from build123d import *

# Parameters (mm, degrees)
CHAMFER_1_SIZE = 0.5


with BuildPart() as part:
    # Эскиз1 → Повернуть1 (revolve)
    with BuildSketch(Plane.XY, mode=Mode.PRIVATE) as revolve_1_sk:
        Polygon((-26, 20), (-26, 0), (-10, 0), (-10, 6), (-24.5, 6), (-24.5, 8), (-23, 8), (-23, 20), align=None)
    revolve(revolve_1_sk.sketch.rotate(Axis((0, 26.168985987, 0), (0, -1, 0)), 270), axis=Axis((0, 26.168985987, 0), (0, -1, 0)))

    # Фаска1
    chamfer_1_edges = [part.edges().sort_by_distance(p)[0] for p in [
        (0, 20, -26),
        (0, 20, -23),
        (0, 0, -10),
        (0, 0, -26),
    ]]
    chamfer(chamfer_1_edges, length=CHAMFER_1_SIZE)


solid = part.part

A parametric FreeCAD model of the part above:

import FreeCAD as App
import Part
import Sketcher
from FreeCAD import Vector
Q = App.Units.Quantity


def edges_at(feature, points):
    """Names of the edges that pass closest to the given points."""
    edges = feature.Shape.Edges
    near = lambda p: min(range(len(edges)), key=lambda i: edges[i].distToShape(Part.Vertex(*p))[0])
    return sorted({f"Edge{near(p) + 1}" for p in points})


def add_polygon(sketch, points):
    """Adds a closed chain of lines whose ends are joined by coincident constraints."""
    first, n = sketch.GeometryCount, len(points)
    for a, b in zip(points, points[1:] + points[:1]):
        sketch.addGeometry(Part.LineSegment(App.Vector(*a, 0), App.Vector(*b, 0)), False)
    for i in range(n):
        sketch.addConstraint(Sketcher.Constraint("Coincident", first + i, 2, first + (i + 1) % n, 1))

doc = App.newDocument("Part")
params = doc.addObject("Spreadsheet::Sheet", "Params")
for row, (alias, value) in enumerate([
    ("sketch1_width", "16 mm"),
    ("sketch1_width2", "3 mm"),
    ("sketch1_height", "20 mm"),
    ("sketch1_height2", "6 mm"),
    ("sketch1_height3", "2 mm"),
    ("revolution_angle", "360 deg"),
    ("chamfer_size", "0.5 mm"),
], start=1):
    params.set(f"A{row}", alias)
    params.set(f"B{row}", "=" + value)
    params.setAlias(f"B{row}", alias)

body = doc.addObject("PartDesign::Body", "Body")

# Sketch on XY plane
sketch1 = doc.addObject("Sketcher::SketchObject", "Sketch")
body.addObject(sketch1)
sketch1.AttachmentSupport = (doc.XY_Plane, [""])
sketch1.MapMode = "FlatFace"
add_polygon(sketch1, [(-26, 20), (-26, 0), (-10, 0), (-10, 6), (-24.5, 6), (-24.5, 8), (-23, 8), (-23, 20)])  # lines 0-7
sketch1.addConstraint([
    Sketcher.Constraint("Vertical", 0),
    Sketcher.Constraint("Horizontal", 1),
    Sketcher.Constraint("Vertical", 2),
    Sketcher.Constraint("Horizontal", 3),
    Sketcher.Constraint("Vertical", 4),
    Sketcher.Constraint("Horizontal", 5),
    Sketcher.Constraint("Vertical", 6),
    Sketcher.Constraint("Horizontal", 7),
    Sketcher.Constraint("PointOnObject", 0, 2, -1),
    Sketcher.Constraint("DistanceX", 1, 1, 1, 2, Q("16 mm")),
    Sketcher.Constraint("DistanceX", 7, 2, 7, 1, Q("3 mm")),
    Sketcher.Constraint("DistanceY", 0, 2, 0, 1, Q("20 mm")),
    Sketcher.Constraint("DistanceY", 2, 1, 2, 2, Q("6 mm")),
    Sketcher.Constraint("DistanceY", 4, 1, 4, 2, Q("2 mm")),
    Sketcher.Constraint("DistanceX", 3, 2, 3, 1, Q("14.5 mm")),
    Sketcher.Constraint("DistanceX", 0, 2, -1, 1, Q("26 mm")),
])
sketch1.setExpression("Constraints[17]", "Params.sketch1_width")
sketch1.setExpression("Constraints[18]", "Params.sketch1_width2")
sketch1.setExpression("Constraints[19]", "Params.sketch1_height")
sketch1.setExpression("Constraints[20]", "Params.sketch1_height2")
sketch1.setExpression("Constraints[21]", "Params.sketch1_height3")
revolution = doc.addObject("PartDesign::Revolution", "Revolution")
body.addObject(revolution)
revolution.Profile = sketch1
revolution.ReferenceAxis = (sketch1, ["V_Axis"])
revolution.setExpression("Angle", "Params.revolution_angle")
doc.recompute()

chamfer = doc.addObject("PartDesign::Chamfer", "Chamfer")
body.addObject(chamfer)
chamfer.Base = (revolution, edges_at(revolution, [
    (0, 20, -26),
    (0, 20, -23),
    (0, 0, -10),
    (0, 0, -26),
]))
chamfer.setExpression("Size", "Params.chamfer_size")

doc.recompute()
